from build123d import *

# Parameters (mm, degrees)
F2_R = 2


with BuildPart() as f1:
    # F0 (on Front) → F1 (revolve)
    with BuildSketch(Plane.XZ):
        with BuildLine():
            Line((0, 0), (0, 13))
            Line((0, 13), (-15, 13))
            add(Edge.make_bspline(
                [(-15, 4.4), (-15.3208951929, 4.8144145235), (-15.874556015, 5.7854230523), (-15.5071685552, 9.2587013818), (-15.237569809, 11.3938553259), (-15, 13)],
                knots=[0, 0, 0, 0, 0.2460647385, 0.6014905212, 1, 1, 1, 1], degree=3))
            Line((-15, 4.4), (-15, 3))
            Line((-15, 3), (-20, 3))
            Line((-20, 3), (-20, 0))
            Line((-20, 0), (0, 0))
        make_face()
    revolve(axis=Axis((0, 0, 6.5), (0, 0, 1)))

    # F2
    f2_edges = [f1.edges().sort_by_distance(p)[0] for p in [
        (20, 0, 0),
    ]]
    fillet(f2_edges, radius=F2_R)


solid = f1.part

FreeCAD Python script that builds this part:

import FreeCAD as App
import Part
import Sketcher
Q = App.Units.Quantity


def edges_at(feature, points):
    """Names of the edges that pass closest to the given points."""
    edges = feature.Shape.Edges
    near = lambda p: min(range(len(edges)), key=lambda i: edges[i].distToShape(Part.Vertex(*p))[0])
    return sorted({f"Edge{near(p) + 1}" for p in points})

doc = App.newDocument("Part")
body = doc.addObject("PartDesign::Body", "Body")

sketch1 = body.newObject("Sketcher::SketchObject", "Sketch")
sketch1.AttachmentSupport = (doc.getObject("XZ_Plane"), [""])
sketch1.MapMode = "FlatFace"
sketch1.addGeometry([
    Part.LineSegment(App.Vector(0, 0, 0), App.Vector(0, 13, 0)),
    Part.LineSegment(App.Vector(0, 13, 0), App.Vector(-15, 13, 0)),
    Part.BSplineCurve([App.Vector(-15, 4.4, 0), App.Vector(-15.320895, 4.814415, 0), App.Vector(-15.874556, 5.785423, 0), App.Vector(-15.507169, 9.258701, 0), App.Vector(-15.23757, 11.393855, 0), App.Vector(-15, 13, 0)], [4, 1, 1, 4], [0, 0.246064738, 0.601490521, 1], False, 3, [1, 1, 1, 1, 1, 1], False),
    Part.LineSegment(App.Vector(-15, 4.4, 0), App.Vector(-15, 3, 0)),
    Part.LineSegment(App.Vector(-15, 3, 0), App.Vector(-20, 3, 0)),
    Part.LineSegment(App.Vector(-20, 3, 0), App.Vector(-20, 0, 0)),
    Part.LineSegment(App.Vector(-20, 0, 0), App.Vector(0, 0, 0)),
], False)
sketch1.addConstraint([
    Sketcher.Constraint("Block", 2),
    Sketcher.Constraint("Coincident", 0, 2, 1, 1),
    Sketcher.Constraint("Coincident", 1, 2, 2, 2),
    Sketcher.Constraint("Coincident", 2, 1, 3, 1),
    Sketcher.Constraint("Coincident", 3, 2, 4, 1),
    Sketcher.Constraint("Coincident", 4, 2, 5, 1),
    Sketcher.Constraint("Coincident", 5, 2, 6, 1),
    Sketcher.Constraint("Coincident", 6, 2, 0, 1),
    Sketcher.Constraint("Vertical", 0),
    Sketcher.Constraint("Horizontal", 1),
    Sketcher.Constraint("Vertical", 3),
    Sketcher.Constraint("Horizontal", 4),
    Sketcher.Constraint("Vertical", 5),
    Sketcher.Constraint("Horizontal", 6),
    Sketcher.Constraint("Coincident", 6, 2, -1, 1),
    Sketcher.Constraint("DistanceX", 4, 2, 4, 1, Q("5 mm")),
    Sketcher.Constraint("DistanceY", 5, 2, 5, 1, Q("3 mm")),
])
revolution = body.newObject("PartDesign::Revolution", "Revolution")
revolution.Profile = sketch1
revolution.ReferenceAxis = (sketch1, ["V_Axis"])
revolution.Angle = 360
doc.recompute()

fillet = body.newObject("PartDesign::Fillet", "Fillet")
fillet.Base = (revolution, edges_at(revolution, [(20, 0, 0)]))
fillet.Radius = 2

doc.recompute()
